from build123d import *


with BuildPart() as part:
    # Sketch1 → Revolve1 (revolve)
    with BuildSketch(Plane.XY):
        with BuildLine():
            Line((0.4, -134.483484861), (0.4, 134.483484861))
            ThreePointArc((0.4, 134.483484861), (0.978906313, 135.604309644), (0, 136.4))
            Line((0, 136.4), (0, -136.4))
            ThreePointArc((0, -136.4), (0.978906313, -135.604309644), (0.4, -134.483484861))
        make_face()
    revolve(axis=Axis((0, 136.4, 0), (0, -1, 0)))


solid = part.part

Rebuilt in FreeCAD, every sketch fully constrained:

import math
import FreeCAD as App
import Part
import Sketcher

V = App.Vector
Q = App.Units.Quantity

doc = App.newDocument("Part")
body = doc.addObject("PartDesign::Body", "Body")

# Sketch on XY plane
sketch1 = body.newObject("Sketcher::SketchObject", "Sketch")
sketch1.AttachmentSupport = (doc.getObject("XY_Plane"), [""])
sketch1.MapMode = "FlatFace"
sketch1.addGeometry(Part.LineSegment(V(0.4, -134.5, 0), V(0.4, 134.5, 0)), False)
sketch1.addGeometry(Part.ArcOfCircle(Part.Circle(V(0, 135.4, 0), V(0, 0, 1), 1), math.radians(-66), math.radians(90)), False)
sketch1.addGeometry(Part.LineSegment(V(0, 136.4, 0), V(0, -136.4, 0)), False)
sketch1.addGeometry(Part.ArcOfCircle(Part.Circle(V(0, -135.4, 0), V(0, 0, 1), 1), math.radians(-90), math.radians(66)), False)
sketch1.addConstraint(Sketcher.Constraint("Coincident", 0, 2, 1, 1))
sketch1.addConstraint(Sketcher.Constraint("Coincident", 1, 2, 2, 1))
sketch1.addConstraint(Sketcher.Constraint("Coincident", 2, 2, 3, 1))
sketch1.addConstraint(Sketcher.Constraint("Coincident", 3, 2, 0, 1))
sketch1.addConstraint(Sketcher.Constraint("Vertical", 0))
sketch1.addConstraint(Sketcher.Constraint("Vertical", 2))
sketch1.addConstraint(Sketcher.Constraint("Equal", 1, 3))
sketch1.addConstraint(Sketcher.Constraint("Symmetric", 1, 3, 3, 3, -1, 1))
sketch1.addConstraint(Sketcher.Constraint("PointOnObject", 1, 3, -2))
sketch1.addConstraint(Sketcher.Constraint("PointOnObject", 1, 2, -2))
sketch1.addConstraint(Sketcher.Constraint("Radius", 1, Q("1 mm")))
sketch1.addConstraint(Sketcher.Constraint("DistanceY", 2, 2, 2, 1, Q("272.8 mm")))
sketch1.addConstraint(Sketcher.Constraint("DistanceX", -1, 1, 0, 2, Q("0.4 mm")))
revolution = body.newObject("PartDesign::Revolution", "Revolution")
revolution.Profile = sketch1
revolution.ReferenceAxis = (sketch1, ["V_Axis"])
revolution.Angle = 360

doc.recompute()
